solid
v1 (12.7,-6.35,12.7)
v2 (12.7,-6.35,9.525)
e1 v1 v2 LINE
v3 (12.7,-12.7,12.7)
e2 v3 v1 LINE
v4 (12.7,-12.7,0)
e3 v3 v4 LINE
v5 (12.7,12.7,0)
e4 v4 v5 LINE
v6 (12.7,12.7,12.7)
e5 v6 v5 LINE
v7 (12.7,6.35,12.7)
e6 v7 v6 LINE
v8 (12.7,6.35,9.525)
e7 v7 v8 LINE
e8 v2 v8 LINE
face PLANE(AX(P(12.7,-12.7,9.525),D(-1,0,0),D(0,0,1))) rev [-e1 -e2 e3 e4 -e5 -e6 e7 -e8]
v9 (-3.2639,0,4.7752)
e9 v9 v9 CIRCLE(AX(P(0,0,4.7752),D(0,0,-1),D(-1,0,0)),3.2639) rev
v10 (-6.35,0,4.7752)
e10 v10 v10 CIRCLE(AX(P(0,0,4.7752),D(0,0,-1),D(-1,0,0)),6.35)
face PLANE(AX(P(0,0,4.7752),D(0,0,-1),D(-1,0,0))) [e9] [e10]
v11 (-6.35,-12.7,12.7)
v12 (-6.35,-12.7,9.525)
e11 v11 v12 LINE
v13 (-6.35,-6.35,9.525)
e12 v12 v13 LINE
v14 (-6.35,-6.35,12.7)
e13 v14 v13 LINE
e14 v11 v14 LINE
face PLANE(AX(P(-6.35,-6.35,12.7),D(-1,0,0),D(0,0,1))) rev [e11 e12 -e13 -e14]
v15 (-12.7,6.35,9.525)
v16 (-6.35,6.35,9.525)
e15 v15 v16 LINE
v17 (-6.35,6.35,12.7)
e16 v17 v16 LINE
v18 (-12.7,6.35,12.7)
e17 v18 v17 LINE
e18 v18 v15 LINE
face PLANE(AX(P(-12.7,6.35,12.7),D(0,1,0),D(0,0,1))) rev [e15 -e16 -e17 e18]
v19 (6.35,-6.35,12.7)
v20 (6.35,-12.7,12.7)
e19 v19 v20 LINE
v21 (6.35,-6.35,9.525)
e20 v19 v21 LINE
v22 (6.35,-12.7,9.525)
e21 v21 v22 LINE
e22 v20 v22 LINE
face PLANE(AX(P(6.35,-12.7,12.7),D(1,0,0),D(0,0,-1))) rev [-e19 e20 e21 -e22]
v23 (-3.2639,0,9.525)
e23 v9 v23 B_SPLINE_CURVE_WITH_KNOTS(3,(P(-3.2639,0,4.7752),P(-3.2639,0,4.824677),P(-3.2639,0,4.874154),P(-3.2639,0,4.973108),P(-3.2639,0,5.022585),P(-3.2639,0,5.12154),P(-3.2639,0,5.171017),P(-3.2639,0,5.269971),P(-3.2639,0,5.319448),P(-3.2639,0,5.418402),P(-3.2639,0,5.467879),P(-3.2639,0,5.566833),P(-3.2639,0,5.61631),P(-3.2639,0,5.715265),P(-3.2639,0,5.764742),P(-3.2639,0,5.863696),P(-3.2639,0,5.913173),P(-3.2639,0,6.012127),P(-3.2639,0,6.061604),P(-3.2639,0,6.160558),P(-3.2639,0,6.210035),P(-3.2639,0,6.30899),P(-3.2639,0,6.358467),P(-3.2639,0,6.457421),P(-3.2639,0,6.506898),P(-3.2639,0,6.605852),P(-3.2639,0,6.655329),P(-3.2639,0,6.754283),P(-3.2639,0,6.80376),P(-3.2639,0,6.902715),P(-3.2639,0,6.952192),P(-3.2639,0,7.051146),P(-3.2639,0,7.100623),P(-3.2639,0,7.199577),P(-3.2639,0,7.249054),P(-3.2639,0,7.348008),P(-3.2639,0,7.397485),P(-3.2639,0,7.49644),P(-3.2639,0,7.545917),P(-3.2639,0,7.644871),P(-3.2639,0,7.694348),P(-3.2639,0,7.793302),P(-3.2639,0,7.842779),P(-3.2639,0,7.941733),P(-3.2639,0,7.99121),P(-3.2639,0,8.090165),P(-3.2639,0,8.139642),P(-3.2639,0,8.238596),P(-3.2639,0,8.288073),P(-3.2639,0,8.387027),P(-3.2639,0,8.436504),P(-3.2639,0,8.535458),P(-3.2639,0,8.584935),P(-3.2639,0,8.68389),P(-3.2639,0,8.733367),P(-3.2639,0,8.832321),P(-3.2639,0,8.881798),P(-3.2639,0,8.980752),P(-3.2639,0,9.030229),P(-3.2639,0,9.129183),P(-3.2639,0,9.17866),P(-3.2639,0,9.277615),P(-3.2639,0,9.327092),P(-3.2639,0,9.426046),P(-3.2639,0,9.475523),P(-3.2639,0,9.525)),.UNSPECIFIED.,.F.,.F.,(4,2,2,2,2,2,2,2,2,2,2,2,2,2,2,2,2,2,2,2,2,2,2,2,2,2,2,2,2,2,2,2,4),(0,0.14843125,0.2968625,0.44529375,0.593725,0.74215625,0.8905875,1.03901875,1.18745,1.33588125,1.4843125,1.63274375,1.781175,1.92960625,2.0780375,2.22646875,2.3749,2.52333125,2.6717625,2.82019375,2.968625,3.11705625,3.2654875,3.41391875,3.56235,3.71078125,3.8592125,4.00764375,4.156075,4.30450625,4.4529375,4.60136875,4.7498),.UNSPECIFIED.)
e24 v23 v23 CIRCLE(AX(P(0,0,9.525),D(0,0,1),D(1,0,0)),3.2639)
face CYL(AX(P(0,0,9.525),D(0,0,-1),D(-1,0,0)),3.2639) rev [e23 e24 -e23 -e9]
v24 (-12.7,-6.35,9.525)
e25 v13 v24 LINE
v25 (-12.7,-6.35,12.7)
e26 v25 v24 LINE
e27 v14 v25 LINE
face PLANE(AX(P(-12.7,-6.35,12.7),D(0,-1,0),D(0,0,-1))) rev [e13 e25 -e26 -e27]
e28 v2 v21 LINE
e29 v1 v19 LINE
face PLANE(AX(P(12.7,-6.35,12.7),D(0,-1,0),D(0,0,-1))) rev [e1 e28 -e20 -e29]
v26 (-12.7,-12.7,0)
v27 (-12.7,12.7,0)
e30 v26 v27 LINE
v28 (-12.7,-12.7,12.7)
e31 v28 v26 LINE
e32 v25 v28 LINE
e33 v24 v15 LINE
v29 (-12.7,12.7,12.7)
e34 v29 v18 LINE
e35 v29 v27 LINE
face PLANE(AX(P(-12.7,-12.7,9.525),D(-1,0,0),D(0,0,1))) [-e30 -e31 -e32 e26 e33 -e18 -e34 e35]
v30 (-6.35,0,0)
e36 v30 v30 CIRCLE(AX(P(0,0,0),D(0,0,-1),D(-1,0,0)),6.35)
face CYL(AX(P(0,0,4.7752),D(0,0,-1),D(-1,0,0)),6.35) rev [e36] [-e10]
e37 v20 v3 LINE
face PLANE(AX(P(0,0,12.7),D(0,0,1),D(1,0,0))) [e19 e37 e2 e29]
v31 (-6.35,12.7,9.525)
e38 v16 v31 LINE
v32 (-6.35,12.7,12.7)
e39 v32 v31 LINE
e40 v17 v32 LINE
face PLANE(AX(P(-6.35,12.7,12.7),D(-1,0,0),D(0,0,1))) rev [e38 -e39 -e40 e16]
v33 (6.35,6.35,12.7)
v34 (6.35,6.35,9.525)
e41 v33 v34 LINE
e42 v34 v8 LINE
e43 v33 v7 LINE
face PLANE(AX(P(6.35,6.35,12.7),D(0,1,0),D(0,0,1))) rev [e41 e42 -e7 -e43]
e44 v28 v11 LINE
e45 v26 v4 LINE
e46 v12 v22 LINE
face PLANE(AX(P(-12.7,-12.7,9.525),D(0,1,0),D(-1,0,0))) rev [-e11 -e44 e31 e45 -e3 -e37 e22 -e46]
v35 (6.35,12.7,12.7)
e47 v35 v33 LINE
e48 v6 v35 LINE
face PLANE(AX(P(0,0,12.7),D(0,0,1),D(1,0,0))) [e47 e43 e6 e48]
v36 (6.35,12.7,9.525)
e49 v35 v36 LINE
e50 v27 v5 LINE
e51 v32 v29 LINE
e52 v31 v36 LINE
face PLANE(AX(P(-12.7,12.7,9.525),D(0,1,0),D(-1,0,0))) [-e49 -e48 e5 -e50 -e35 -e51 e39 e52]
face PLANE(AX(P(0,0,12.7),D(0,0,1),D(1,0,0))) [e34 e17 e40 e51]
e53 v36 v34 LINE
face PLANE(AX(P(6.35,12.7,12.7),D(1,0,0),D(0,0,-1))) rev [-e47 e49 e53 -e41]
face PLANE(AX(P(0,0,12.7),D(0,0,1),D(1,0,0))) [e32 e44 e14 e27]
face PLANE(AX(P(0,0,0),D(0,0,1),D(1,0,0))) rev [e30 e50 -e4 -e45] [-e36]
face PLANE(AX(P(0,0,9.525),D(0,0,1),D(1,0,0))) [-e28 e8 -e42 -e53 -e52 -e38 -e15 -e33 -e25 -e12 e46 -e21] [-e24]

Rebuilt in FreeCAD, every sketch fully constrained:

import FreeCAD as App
import Part
import Sketcher
Q = App.Units.Quantity

doc = App.newDocument("Part")
body = doc.addObject("PartDesign::Body", "Body")

# Sketch on XY plane
sketch1 = body.newObject("Sketcher::SketchObject", "Sketch")
sketch1.AttachmentSupport = (doc.getObject("XY_Plane"), [""])
sketch1.MapMode = "FlatFace"
sketch1.addGeometry(Part.LineSegment(App.Vector(-12.7, -12.7, 0), App.Vector(12.7, -12.7, 0)), False)
sketch1.addGeometry(Part.LineSegment(App.Vector(12.7, -12.7, 0), App.Vector(12.7, 12.7, 0)), False)
sketch1.addGeometry(Part.LineSegment(App.Vector(12.7, 12.7, 0), App.Vector(-12.7, 12.7, 0)), False)
sketch1.addGeometry(Part.LineSegment(App.Vector(-12.7, 12.7, 0), App.Vector(-12.7, -12.7, 0)), False)
sketch1.addConstraint(Sketcher.Constraint("Coincident", 0, 2, 1, 1))
sketch1.addConstraint(Sketcher.Constraint("Coincident", 1, 2, 2, 1))
sketch1.addConstraint(Sketcher.Constraint("Coincident", 2, 2, 3, 1))
sketch1.addConstraint(Sketcher.Constraint("Coincident", 3, 2, 0, 1))
sketch1.addConstraint(Sketcher.Constraint("Horizontal", 0))
sketch1.addConstraint(Sketcher.Constraint("Vertical", 1))
sketch1.addConstraint(Sketcher.Constraint("Horizontal", 2))
sketch1.addConstraint(Sketcher.Constraint("Vertical", 3))
sketch1.addConstraint(Sketcher.Constraint("Symmetric", 0, 2, 2, 2, -1, 1))
sketch1.addConstraint(Sketcher.Constraint("Equal", 2, 1))
sketch1.addConstraint(Sketcher.Constraint("DistanceX", 0, 1, 0, 2, Q("1 in")))
pad1 = body.newObject("PartDesign::Pad", "Pad")
pad1.Profile = sketch1
pad1.Length = Q("0.375 in")

# Sketch on XY plane
sketch2 = body.newObject("Sketcher::SketchObject", "Sketch001")
sketch2.AttachmentSupport = (doc.getObject("XY_Plane"), [""])
sketch2.MapMode = "FlatFace"
sketch2.addGeometry(Part.Circle(App.Vector(0, 0, 0), App.Vector(0, 0, 1), 6.35), False)
sketch2.addConstraint(Sketcher.Constraint("Coincident", 0, 3, -1, 1))
sketch2.addConstraint(Sketcher.Constraint("Diameter", 0, Q("0.5 in")))
pocket1 = body.newObject("PartDesign::Pocket", "Pocket")
pocket1.Profile = sketch2
pocket1.Length = Q("0.188 in")
pocket1.Reversed = True

# Sketch on XY plane
sketch3 = body.newObject("Sketcher::SketchObject", "Sketch002")
sketch3.AttachmentSupport = (doc.getObject("XY_Plane"), [""])
sketch3.MapMode = "FlatFace"
sketch3.addGeometry(Part.Circle(App.Vector(0, 0, 0), App.Vector(0, 0, 1), 3.2639), False)
sketch3.addConstraint(Sketcher.Constraint("Coincident", 0, 3, -1, 1))
sketch3.addConstraint(Sketcher.Constraint("Diameter", 0, Q("0.257 in")))
pocket2 = body.newObject("PartDesign::Pocket", "Pocket001")
pocket2.Profile = sketch3
pocket2.Length = Q("0.375 in")
pocket2.Reversed = True

# Sketch on XY plane
sketch4 = body.newObject("Sketcher::SketchObject", "Sketch003")
sketch4.AttachmentSupport = (doc.getObject("XY_Plane"), [""])
sketch4.MapMode = "FlatFace"
sketch4.AttachmentOffset = App.Placement(App.Vector(0, 0, 0.375 * 25.4), App.Rotation())
sketch4.addGeometry(Part.LineSegment(App.Vector(-12.7, 12.7, 0), App.Vector(-12.7, 6.35, 0)), False)
sketch4.addGeometry(Part.LineSegment(App.Vector(-12.7, 6.35, 0), App.Vector(-6.35, 6.35, 0)), False)
sketch4.addGeometry(Part.LineSegment(App.Vector(-6.35, 6.35, 0), App.Vector(-6.35, 12.7, 0)), False)
sketch4.addGeometry(Part.LineSegment(App.Vector(-6.35, 12.7, 0), App.Vector(-12.7, 12.7, 0)), False)
sketch4.addGeometry(Part.LineSegment(App.Vector(-12.7, -6.35, 0), App.Vector(-12.7, -12.7, 0)), False)
sketch4.addGeometry(Part.LineSegment(App.Vector(-12.7, -12.7, 0), App.Vector(-6.35, -12.7, 0)), False)
sketch4.addGeometry(Part.LineSegment(App.Vector(-6.35, -12.7, 0), App.Vector(-6.35, -6.35, 0)), False)
sketch4.addGeometry(Part.LineSegment(App.Vector(-6.35, -6.35, 0), App.Vector(-12.7, -6.35, 0)), False)
sketch4.addGeometry(Part.LineSegment(App.Vector(6.35, -6.35, 0), App.Vector(6.35, -12.7, 0)), False)
sketch4.addGeometry(Part.LineSegment(App.Vector(6.35, -12.7, 0), App.Vector(12.7, -12.7, 0)), False)
sketch4.addGeometry(Part.LineSegment(App.Vector(12.7, -12.7, 0), App.Vector(12.7, -6.35, 0)), False)
sketch4.addGeometry(Part.LineSegment(App.Vector(12.7, -6.35, 0), App.Vector(6.35, -6.35, 0)), False)
sketch4.addGeometry(Part.LineSegment(App.Vector(6.35, 12.7, 0), App.Vector(6.35, 6.35, 0)), False)
sketch4.addGeometry(Part.LineSegment(App.Vector(6.35, 6.35, 0), App.Vector(12.7, 6.35, 0)), False)
sketch4.addGeometry(Part.LineSegment(App.Vector(12.7, 6.35, 0), App.Vector(12.7, 12.7, 0)), False)
sketch4.addGeometry(Part.LineSegment(App.Vector(12.7, 12.7, 0), App.Vector(6.35, 12.7, 0)), False)
sketch4.addConstraint(Sketcher.Constraint("Coincident", 0, 2, 1, 1))
sketch4.addConstraint(Sketcher.Constraint("Coincident", 1, 2, 2, 1))
sketch4.addConstraint(Sketcher.Constraint("Coincident", 2, 2, 3, 1))
sketch4.addConstraint(Sketcher.Constraint("Coincident", 3, 2, 0, 1))
sketch4.addConstraint(Sketcher.Constraint("Coincident", 4, 2, 5, 1))
sketch4.addConstraint(Sketcher.Constraint("Coincident", 5, 2, 6, 1))
sketch4.addConstraint(Sketcher.Constraint("Coincident", 6, 2, 7, 1))
sketch4.addConstraint(Sketcher.Constraint("Coincident", 7, 2, 4, 1))
sketch4.addConstraint(Sketcher.Constraint("Coincident", 8, 2, 9, 1))
sketch4.addConstraint(Sketcher.Constraint("Coincident", 9, 2, 10, 1))
sketch4.addConstraint(Sketcher.Constraint("Coincident", 10, 2, 11, 1))
sketch4.addConstraint(Sketcher.Constraint("Coincident", 11, 2, 8, 1))
sketch4.addConstraint(Sketcher.Constraint("Coincident", 12, 2, 13, 1))
sketch4.addConstraint(Sketcher.Constraint("Coincident", 13, 2, 14, 1))
sketch4.addConstraint(Sketcher.Constraint("Coincident", 14, 2, 15, 1))
sketch4.addConstraint(Sketcher.Constraint("Coincident", 15, 2, 12, 1))
sketch4.addConstraint(Sketcher.Constraint("Vertical", 0))
sketch4.addConstraint(Sketcher.Constraint("Horizontal", 1))
sketch4.addConstraint(Sketcher.Constraint("Vertical", 2))
sketch4.addConstraint(Sketcher.Constraint("Horizontal", 3))
sketch4.addConstraint(Sketcher.Constraint("Vertical", 4))
sketch4.addConstraint(Sketcher.Constraint("Horizontal", 5))
sketch4.addConstraint(Sketcher.Constraint("Vertical", 6))
sketch4.addConstraint(Sketcher.Constraint("Horizontal", 7))
sketch4.addConstraint(Sketcher.Constraint("Vertical", 8))
sketch4.addConstraint(Sketcher.Constraint("Horizontal", 9))
sketch4.addConstraint(Sketcher.Constraint("Vertical", 10))
sketch4.addConstraint(Sketcher.Constraint("Horizontal", 11))
sketch4.addConstraint(Sketcher.Constraint("Vertical", 12))
sketch4.addConstraint(Sketcher.Constraint("Horizontal", 13))
sketch4.addConstraint(Sketcher.Constraint("Vertical", 14))
sketch4.addConstraint(Sketcher.Constraint("Horizontal", 15))
sketch4.addConstraint(Sketcher.Constraint("Symmetric", 2, 2, 8, 2, -1, 1))
sketch4.addConstraint(Sketcher.Constraint("Symmetric", 0, 2, 10, 2, -1, 1))
sketch4.addConstraint(Sketcher.Constraint("Symmetric", 6, 2, 12, 2, -1, 1))
sketch4.addConstraint(Sketcher.Constraint("Symmetric", 4, 2, 14, 2, -1, 1))
sketch4.addConstraint(Sketcher.Constraint("Symmetric", 5, 2, 8, 2, -2))
sketch4.addConstraint(Sketcher.Constraint("Symmetric", 7, 2, 10, 2, -2))
sketch4.addConstraint(Sketcher.Constraint("Equal", 15, 0))
sketch4.addConstraint(Sketcher.Constraint("DistanceY", 4, 2, 3, 2, Q("1 in")))
sketch4.addConstraint(Sketcher.Constraint("DistanceX", 4, 2, 9, 2, Q("1 in")))
sketch4.addConstraint(Sketcher.Constraint("DistanceX", 1, 1, 1, 2, Q("0.25 in")))
pad2 = body.newObject("PartDesign::Pad", "Pad001")
pad2.Profile = sketch4
pad2.Length = Q("0.125 in")

doc.recompute()
